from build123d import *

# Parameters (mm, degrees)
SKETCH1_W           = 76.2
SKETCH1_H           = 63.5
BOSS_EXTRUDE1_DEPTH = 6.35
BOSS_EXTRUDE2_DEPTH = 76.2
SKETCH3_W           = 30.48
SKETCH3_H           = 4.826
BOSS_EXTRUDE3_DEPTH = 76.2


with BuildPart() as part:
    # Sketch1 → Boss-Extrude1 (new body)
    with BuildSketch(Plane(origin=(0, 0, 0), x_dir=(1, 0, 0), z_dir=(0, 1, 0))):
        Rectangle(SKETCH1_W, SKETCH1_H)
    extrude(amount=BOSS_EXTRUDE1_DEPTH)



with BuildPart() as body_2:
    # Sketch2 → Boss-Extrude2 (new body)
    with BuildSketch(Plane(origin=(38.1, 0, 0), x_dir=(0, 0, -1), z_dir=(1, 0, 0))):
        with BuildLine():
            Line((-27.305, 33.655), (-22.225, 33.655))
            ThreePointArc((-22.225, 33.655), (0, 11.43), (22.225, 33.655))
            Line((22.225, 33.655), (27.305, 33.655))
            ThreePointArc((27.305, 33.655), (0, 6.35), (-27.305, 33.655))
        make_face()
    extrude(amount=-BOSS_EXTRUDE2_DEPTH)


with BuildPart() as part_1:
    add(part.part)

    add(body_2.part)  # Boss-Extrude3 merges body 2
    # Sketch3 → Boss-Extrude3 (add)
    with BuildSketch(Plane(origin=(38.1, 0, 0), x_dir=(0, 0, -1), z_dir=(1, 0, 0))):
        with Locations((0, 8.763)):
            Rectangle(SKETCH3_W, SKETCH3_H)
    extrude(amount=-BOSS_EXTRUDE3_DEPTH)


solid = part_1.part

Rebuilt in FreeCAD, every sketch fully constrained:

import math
import FreeCAD as App
import Part
import Sketcher
from FreeCAD import Vector
Q = App.Units.Quantity

doc = App.newDocument("Part")
body = doc.addObject("PartDesign::Body", "Body")

sketch1 = doc.addObject("Sketcher::SketchObject", "Sketch")
body.addObject(sketch1)
sketch1.AttachmentSupport = (doc.XZ_Plane, [""])
sketch1.MapMode = "FlatFace"
sketch1.addGeometry(Part.LineSegment(Vector(-38, -32, 0), Vector(-38, 32, 0)), False)
sketch1.addGeometry(Part.LineSegment(Vector(-38, 32, 0), Vector(38, 32, 0)), False)
sketch1.addGeometry(Part.LineSegment(Vector(38, 32, 0), Vector(38, -32, 0)), False)
sketch1.addGeometry(Part.LineSegment(Vector(38, -32, 0), Vector(-38, -32, 0)), False)
sketch1.addConstraint(Sketcher.Constraint("Coincident", 0, 2, 1, 1))
sketch1.addConstraint(Sketcher.Constraint("Coincident", 1, 2, 2, 1))
sketch1.addConstraint(Sketcher.Constraint("Coincident", 2, 2, 3, 1))
sketch1.addConstraint(Sketcher.Constraint("Coincident", 3, 2, 0, 1))
sketch1.addConstraint(Sketcher.Constraint("Vertical", 0))
sketch1.addConstraint(Sketcher.Constraint("Horizontal", 1))
sketch1.addConstraint(Sketcher.Constraint("Vertical", 2))
sketch1.addConstraint(Sketcher.Constraint("Horizontal", 3))
sketch1.addConstraint(Sketcher.Constraint("Symmetric", 0, 2, 2, 2, -1, 1))
sketch1.addConstraint(Sketcher.Constraint("DistanceX", 1, 1, 1, 2, Q("3 in")))
sketch1.addConstraint(Sketcher.Constraint("DistanceY", 0, 1, 0, 2, Q("2.5 in")))
pad1 = doc.addObject("PartDesign::Pad", "Pad")
body.addObject(pad1)
pad1.Profile = sketch1
pad1.Length = Q("0.25 in")
pad1.Reversed = True
body2 = doc.addObject("PartDesign::Body", "Body001")

sketch2 = doc.addObject("Sketcher::SketchObject", "Sketch001")
body2.addObject(sketch2)
sketch2.AttachmentSupport = (doc.getObject("YZ_Plane001"), [""])
sketch2.MapMode = "FlatFace"
sketch2.AttachmentOffset = App.Placement(Vector(0, 0, 1.5 * 25.4), App.Rotation())
sketch2.addGeometry(Part.LineSegment(Vector(34, 22, 0), Vector(34, 27, 0)), False)
sketch2.addGeometry(Part.ArcOfCircle(Part.Circle(Vector(34, 0, 0), Vector(0, 0, 1), 27), math.radians(90), math.radians(270)), False)
sketch2.addGeometry(Part.LineSegment(Vector(34, -27, 0), Vector(34, -22, 0)), False)
sketch2.addGeometry(Part.ArcOfCircle(Part.Circle(Vector(34, 0, 0), Vector(0, 0, 1), 22), math.radians(90), math.radians(270)), False)
sketch2.addConstraint(Sketcher.Constraint("Coincident", 0, 2, 1, 1))
sketch2.addConstraint(Sketcher.Constraint("Coincident", 1, 2, 2, 1))
sketch2.addConstraint(Sketcher.Constraint("Coincident", 2, 2, 3, 2))
sketch2.addConstraint(Sketcher.Constraint("Coincident", 3, 1, 0, 1))
sketch2.addConstraint(Sketcher.Constraint("Vertical", 0))
sketch2.addConstraint(Sketcher.Constraint("Vertical", 2))
sketch2.addConstraint(Sketcher.Constraint("Coincident", 3, 3, 1, 3))
sketch2.addConstraint(Sketcher.Constraint("Symmetric", 0, 2, 1, 2, -1))
sketch2.addConstraint(Sketcher.Constraint("Vertical", 3, 3, 0, 2))
sketch2.addConstraint(Sketcher.Constraint("DistanceY", 0, 1, 0, 2, Q("0.2 in")))
sketch2.addConstraint(Sketcher.Constraint("Radius", 1, Q("1.075 in")))
sketch2.addConstraint(Sketcher.Constraint("DistanceX", -1, 1, 1, 3, Q("1.325 in")))
pad2 = doc.addObject("PartDesign::Pad", "Pad001")
body2.addObject(pad2)
pad2.Profile = sketch2
pad2.Length = Q("3 in")
pad2.Reversed = True
body.AllowCompound = True
doc.recompute()

boolean = doc.addObject("PartDesign::Boolean", "Boolean")
body.addObject(boolean)
boolean.Type = "Fuse"
boolean.addObjects([body2])

sketch3 = doc.addObject("Sketcher::SketchObject", "Sketch002")
body.addObject(sketch3)
sketch3.AttachmentSupport = (doc.YZ_Plane, [""])
sketch3.MapMode = "FlatFace"
sketch3.AttachmentOffset = App.Placement(Vector(0, 0, 1.5 * 25.4), App.Rotation())
sketch3.addGeometry(Part.LineSegment(Vector(11.2, 15.2, 0), Vector(6.3, 15.2, 0)), False)
sketch3.addGeometry(Part.LineSegment(Vector(6.3, 15.2, 0), Vector(6.3, -15.2, 0)), False)
sketch3.addGeometry(Part.LineSegment(Vector(6.3, -15.2, 0), Vector(11.2, -15.2, 0)), False)
sketch3.addGeometry(Part.LineSegment(Vector(11.2, -15.2, 0), Vector(11.2, 15.2, 0)), False)
sketch3.addConstraint(Sketcher.Constraint("Coincident", 0, 2, 1, 1))
sketch3.addConstraint(Sketcher.Constraint("Coincident", 1, 2, 2, 1))
sketch3.addConstraint(Sketcher.Constraint("Coincident", 2, 2, 3, 1))
sketch3.addConstraint(Sketcher.Constraint("Coincident", 3, 2, 0, 1))
sketch3.addConstraint(Sketcher.Constraint("Horizontal", 0))
sketch3.addConstraint(Sketcher.Constraint("Vertical", 1))
sketch3.addConstraint(Sketcher.Constraint("Horizontal", 2))
sketch3.addConstraint(Sketcher.Constraint("Vertical", 3))
sketch3.addConstraint(Sketcher.Constraint("DistanceY", 1, 2, 1, 1, Q("1.2 in")))
sketch3.addConstraint(Sketcher.Constraint("DistanceX", 0, 2, 0, 1, Q("0.19 in")))
sketch3.addConstraint(Sketcher.Constraint("DistanceY", -1, 1, 0, 2, Q("0.6 in")))
sketch3.addConstraint(Sketcher.Constraint("DistanceX", -1, 1, 0, 2, Q("0.25 in")))
pad3 = doc.addObject("PartDesign::Pad", "Pad002")
body.addObject(pad3)
pad3.Profile = sketch3
pad3.Length = Q("3 in")
pad3.Reversed = True

doc.recompute()
